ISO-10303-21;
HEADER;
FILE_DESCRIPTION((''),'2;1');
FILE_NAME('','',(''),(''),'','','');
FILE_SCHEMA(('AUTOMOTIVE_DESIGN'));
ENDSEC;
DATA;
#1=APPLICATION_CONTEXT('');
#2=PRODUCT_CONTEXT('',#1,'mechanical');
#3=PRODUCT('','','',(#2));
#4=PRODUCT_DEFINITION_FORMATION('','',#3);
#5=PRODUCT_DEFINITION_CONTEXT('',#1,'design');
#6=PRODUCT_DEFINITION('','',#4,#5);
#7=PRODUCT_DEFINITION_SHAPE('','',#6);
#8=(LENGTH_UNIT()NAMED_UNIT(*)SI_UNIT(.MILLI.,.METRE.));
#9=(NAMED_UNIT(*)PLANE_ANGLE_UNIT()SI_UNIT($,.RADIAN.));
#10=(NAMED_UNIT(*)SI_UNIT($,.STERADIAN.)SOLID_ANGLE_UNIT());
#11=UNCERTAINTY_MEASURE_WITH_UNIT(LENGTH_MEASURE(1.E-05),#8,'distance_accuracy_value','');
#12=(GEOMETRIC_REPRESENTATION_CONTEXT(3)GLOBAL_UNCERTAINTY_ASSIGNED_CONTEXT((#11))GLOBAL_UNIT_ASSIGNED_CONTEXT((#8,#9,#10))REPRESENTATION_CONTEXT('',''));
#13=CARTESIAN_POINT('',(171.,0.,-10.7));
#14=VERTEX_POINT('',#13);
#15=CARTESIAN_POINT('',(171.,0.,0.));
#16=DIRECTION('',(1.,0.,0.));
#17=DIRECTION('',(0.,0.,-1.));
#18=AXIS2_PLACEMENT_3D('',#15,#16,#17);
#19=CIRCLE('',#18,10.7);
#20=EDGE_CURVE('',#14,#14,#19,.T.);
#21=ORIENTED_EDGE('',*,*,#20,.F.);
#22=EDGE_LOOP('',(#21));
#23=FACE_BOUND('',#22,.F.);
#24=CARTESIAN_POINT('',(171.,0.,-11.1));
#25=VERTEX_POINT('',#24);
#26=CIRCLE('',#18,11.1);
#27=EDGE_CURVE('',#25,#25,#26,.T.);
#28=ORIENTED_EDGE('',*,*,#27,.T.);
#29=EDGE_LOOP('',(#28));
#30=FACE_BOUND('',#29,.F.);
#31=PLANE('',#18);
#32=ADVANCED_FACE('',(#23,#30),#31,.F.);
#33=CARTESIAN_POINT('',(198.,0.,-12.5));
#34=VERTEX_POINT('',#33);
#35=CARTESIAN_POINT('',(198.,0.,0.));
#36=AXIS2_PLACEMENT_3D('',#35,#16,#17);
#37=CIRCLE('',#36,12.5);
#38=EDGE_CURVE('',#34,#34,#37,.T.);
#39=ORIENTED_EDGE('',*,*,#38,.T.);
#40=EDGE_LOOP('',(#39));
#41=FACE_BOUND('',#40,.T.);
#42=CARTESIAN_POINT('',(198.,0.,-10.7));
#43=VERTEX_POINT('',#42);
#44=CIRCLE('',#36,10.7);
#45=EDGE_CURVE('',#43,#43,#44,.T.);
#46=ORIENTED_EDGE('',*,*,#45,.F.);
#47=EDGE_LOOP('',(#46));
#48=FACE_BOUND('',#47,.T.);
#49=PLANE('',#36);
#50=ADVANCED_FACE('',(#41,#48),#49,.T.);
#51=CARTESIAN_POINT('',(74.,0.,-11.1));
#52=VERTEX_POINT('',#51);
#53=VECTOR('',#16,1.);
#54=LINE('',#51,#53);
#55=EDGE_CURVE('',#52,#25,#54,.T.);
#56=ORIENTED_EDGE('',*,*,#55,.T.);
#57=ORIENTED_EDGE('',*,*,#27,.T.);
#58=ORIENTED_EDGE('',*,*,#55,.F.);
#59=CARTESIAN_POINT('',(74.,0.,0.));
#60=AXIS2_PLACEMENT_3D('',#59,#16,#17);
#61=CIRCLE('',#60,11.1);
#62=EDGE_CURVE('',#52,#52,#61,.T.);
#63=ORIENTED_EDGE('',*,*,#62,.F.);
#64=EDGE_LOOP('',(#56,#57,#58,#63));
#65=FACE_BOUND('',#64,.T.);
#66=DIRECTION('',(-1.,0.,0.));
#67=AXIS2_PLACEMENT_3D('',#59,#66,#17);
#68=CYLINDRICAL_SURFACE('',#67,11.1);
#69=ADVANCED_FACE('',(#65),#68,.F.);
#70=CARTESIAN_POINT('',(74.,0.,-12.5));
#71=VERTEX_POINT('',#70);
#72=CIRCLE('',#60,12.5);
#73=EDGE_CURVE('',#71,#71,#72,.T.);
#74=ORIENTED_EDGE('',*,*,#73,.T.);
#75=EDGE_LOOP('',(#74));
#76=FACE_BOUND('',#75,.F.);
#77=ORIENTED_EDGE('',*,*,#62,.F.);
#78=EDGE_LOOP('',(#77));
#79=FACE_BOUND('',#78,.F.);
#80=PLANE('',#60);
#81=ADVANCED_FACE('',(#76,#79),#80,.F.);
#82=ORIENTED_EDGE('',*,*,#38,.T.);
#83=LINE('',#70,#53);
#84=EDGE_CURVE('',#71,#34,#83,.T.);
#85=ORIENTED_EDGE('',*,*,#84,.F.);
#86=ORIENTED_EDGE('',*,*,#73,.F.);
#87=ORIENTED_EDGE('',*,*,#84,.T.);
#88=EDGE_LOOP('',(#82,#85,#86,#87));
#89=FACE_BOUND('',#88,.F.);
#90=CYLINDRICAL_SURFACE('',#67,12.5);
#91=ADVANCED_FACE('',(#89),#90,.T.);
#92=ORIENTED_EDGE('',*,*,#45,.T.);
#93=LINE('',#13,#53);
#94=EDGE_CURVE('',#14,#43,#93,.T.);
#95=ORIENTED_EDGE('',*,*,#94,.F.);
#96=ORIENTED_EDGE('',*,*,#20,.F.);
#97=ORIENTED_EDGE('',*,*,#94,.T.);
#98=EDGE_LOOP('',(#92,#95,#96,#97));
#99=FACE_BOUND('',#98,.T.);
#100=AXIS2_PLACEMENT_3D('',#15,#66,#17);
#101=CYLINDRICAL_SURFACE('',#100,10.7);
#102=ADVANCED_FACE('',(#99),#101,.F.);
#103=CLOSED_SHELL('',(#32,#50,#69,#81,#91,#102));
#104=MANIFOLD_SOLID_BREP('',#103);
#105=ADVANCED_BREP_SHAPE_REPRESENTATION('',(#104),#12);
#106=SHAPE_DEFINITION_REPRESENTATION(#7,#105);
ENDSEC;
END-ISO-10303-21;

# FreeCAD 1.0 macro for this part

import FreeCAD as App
import Part
import Sketcher

V = App.Vector
Q = App.Units.Quantity

doc = App.newDocument("Part")
body = doc.addObject("PartDesign::Body", "Body")

sketch1 = doc.addObject("Sketcher::SketchObject", "Sketch")
body.addObject(sketch1)
sketch1.AttachmentSupport = (doc.XY_Plane, [""])
sketch1.MapMode = "FlatFace"
sketch1.addGeometry(Part.Circle(V(0, 0, 0), V(0, 0, 1), 11), False)
sketch1.addConstraint(Sketcher.Constraint("Coincident", 0, 3, -1, 1))
sketch1.addConstraint(Sketcher.Constraint("Diameter", 0, Q("21.4 mm")))
pad1 = doc.addObject("PartDesign::Pad", "Pad")
body.addObject(pad1)
pad1.Profile = sketch1
pad1.Length = 27
body2 = doc.addObject("PartDesign::Body", "Body001")
doc.recompute()

body.Placement = App.Placement(V(0, 0, 0), App.Rotation(V(0, 1, 0), 90))
boolean = doc.addObject("PartDesign::Boolean", "Boolean")
body2.addObject(boolean)
boolean.Type = "Fuse"
boolean.addObjects([body])
body3 = doc.addObject("PartDesign::Body", "Body002")
doc.recompute()

body2.Placement = App.Placement(V(171, 0, 0), App.Rotation(V(0, 0, 1), 0))
boolean2 = doc.addObject("PartDesign::Boolean", "Boolean001")
body3.addObject(boolean2)
boolean2.Type = "Fuse"
boolean2.addObjects([body2])
body4 = doc.addObject("PartDesign::Body", "Body003")

sketch2 = doc.addObject("Sketcher::SketchObject", "Sketch001")
body4.addObject(sketch2)
sketch2.AttachmentSupport = (doc.getObject("XY_Plane003"), [""])
sketch2.MapMode = "FlatFace"
sketch2.addGeometry(Part.Circle(V(0, 0, 0), V(0, 0, 1), 11), False)
sketch2.addConstraint(Sketcher.Constraint("Coincident", 0, 3, -1, 1))
sketch2.addConstraint(Sketcher.Constraint("Diameter", 0, Q("22.2 mm")))
pad2 = doc.addObject("PartDesign::Pad", "Pad001")
body4.addObject(pad2)
pad2.Profile = sketch2
pad2.Length = 97
body5 = doc.addObject("PartDesign::Body", "Body004")
doc.recompute()

body4.Placement = App.Placement(V(0, 0, 0), App.Rotation(V(0, 1, 0), 90))
boolean3 = doc.addObject("PartDesign::Boolean", "Boolean002")
body5.addObject(boolean3)
boolean3.Type = "Fuse"
boolean3.addObjects([body4])
body6 = doc.addObject("PartDesign::Body", "Body005")
doc.recompute()

body5.Placement = App.Placement(V(74, 0, 0), App.Rotation(V(0, 0, 1), 0))
boolean4 = doc.addObject("PartDesign::Boolean", "Boolean003")
body6.addObject(boolean4)
boolean4.Type = "Fuse"
boolean4.addObjects([body5])
body7 = doc.addObject("PartDesign::Body", "Body006")

sketch3 = doc.addObject("Sketcher::SketchObject", "Sketch002")
body7.addObject(sketch3)
sketch3.AttachmentSupport = (doc.getObject("XY_Plane006"), [""])
sketch3.MapMode = "FlatFace"
sketch3.addGeometry(Part.Circle(V(0, 0, 0), V(0, 0, 1), 12), False)
sketch3.addConstraint(Sketcher.Constraint("Coincident", 0, 3, -1, 1))
sketch3.addConstraint(Sketcher.Constraint("Diameter", 0, Q("25 mm")))
pad3 = doc.addObject("PartDesign::Pad", "Pad002")
body7.addObject(pad3)
pad3.Profile = sketch3
pad3.Length = 124
body8 = doc.addObject("PartDesign::Body", "Body007")
doc.recompute()

body7.Placement = App.Placement(V(0, 0, 0), App.Rotation(V(0, 1, 0), 90))
boolean5 = doc.addObject("PartDesign::Boolean", "Boolean004")
body8.addObject(boolean5)
boolean5.Type = "Fuse"
boolean5.addObjects([body7])
body9 = doc.addObject("PartDesign::Body", "Body008")
doc.recompute()

body8.Placement = App.Placement(V(74, 0, 0), App.Rotation(V(0, 0, 1), 0))
boolean6 = doc.addObject("PartDesign::Boolean", "Boolean005")
body9.addObject(boolean6)
boolean6.Type = "Fuse"
boolean6.addObjects([body8])
doc.recompute()

boolean7 = doc.addObject("PartDesign::Boolean", "Boolean006")
body9.addObject(boolean7)
boolean7.Type = "Cut"
boolean7.addObjects([body6])
doc.recompute()

boolean8 = doc.addObject("PartDesign::Boolean", "Boolean007")
body9.addObject(boolean8)
boolean8.Type = "Cut"
boolean8.addObjects([body3])

doc.recompute()
